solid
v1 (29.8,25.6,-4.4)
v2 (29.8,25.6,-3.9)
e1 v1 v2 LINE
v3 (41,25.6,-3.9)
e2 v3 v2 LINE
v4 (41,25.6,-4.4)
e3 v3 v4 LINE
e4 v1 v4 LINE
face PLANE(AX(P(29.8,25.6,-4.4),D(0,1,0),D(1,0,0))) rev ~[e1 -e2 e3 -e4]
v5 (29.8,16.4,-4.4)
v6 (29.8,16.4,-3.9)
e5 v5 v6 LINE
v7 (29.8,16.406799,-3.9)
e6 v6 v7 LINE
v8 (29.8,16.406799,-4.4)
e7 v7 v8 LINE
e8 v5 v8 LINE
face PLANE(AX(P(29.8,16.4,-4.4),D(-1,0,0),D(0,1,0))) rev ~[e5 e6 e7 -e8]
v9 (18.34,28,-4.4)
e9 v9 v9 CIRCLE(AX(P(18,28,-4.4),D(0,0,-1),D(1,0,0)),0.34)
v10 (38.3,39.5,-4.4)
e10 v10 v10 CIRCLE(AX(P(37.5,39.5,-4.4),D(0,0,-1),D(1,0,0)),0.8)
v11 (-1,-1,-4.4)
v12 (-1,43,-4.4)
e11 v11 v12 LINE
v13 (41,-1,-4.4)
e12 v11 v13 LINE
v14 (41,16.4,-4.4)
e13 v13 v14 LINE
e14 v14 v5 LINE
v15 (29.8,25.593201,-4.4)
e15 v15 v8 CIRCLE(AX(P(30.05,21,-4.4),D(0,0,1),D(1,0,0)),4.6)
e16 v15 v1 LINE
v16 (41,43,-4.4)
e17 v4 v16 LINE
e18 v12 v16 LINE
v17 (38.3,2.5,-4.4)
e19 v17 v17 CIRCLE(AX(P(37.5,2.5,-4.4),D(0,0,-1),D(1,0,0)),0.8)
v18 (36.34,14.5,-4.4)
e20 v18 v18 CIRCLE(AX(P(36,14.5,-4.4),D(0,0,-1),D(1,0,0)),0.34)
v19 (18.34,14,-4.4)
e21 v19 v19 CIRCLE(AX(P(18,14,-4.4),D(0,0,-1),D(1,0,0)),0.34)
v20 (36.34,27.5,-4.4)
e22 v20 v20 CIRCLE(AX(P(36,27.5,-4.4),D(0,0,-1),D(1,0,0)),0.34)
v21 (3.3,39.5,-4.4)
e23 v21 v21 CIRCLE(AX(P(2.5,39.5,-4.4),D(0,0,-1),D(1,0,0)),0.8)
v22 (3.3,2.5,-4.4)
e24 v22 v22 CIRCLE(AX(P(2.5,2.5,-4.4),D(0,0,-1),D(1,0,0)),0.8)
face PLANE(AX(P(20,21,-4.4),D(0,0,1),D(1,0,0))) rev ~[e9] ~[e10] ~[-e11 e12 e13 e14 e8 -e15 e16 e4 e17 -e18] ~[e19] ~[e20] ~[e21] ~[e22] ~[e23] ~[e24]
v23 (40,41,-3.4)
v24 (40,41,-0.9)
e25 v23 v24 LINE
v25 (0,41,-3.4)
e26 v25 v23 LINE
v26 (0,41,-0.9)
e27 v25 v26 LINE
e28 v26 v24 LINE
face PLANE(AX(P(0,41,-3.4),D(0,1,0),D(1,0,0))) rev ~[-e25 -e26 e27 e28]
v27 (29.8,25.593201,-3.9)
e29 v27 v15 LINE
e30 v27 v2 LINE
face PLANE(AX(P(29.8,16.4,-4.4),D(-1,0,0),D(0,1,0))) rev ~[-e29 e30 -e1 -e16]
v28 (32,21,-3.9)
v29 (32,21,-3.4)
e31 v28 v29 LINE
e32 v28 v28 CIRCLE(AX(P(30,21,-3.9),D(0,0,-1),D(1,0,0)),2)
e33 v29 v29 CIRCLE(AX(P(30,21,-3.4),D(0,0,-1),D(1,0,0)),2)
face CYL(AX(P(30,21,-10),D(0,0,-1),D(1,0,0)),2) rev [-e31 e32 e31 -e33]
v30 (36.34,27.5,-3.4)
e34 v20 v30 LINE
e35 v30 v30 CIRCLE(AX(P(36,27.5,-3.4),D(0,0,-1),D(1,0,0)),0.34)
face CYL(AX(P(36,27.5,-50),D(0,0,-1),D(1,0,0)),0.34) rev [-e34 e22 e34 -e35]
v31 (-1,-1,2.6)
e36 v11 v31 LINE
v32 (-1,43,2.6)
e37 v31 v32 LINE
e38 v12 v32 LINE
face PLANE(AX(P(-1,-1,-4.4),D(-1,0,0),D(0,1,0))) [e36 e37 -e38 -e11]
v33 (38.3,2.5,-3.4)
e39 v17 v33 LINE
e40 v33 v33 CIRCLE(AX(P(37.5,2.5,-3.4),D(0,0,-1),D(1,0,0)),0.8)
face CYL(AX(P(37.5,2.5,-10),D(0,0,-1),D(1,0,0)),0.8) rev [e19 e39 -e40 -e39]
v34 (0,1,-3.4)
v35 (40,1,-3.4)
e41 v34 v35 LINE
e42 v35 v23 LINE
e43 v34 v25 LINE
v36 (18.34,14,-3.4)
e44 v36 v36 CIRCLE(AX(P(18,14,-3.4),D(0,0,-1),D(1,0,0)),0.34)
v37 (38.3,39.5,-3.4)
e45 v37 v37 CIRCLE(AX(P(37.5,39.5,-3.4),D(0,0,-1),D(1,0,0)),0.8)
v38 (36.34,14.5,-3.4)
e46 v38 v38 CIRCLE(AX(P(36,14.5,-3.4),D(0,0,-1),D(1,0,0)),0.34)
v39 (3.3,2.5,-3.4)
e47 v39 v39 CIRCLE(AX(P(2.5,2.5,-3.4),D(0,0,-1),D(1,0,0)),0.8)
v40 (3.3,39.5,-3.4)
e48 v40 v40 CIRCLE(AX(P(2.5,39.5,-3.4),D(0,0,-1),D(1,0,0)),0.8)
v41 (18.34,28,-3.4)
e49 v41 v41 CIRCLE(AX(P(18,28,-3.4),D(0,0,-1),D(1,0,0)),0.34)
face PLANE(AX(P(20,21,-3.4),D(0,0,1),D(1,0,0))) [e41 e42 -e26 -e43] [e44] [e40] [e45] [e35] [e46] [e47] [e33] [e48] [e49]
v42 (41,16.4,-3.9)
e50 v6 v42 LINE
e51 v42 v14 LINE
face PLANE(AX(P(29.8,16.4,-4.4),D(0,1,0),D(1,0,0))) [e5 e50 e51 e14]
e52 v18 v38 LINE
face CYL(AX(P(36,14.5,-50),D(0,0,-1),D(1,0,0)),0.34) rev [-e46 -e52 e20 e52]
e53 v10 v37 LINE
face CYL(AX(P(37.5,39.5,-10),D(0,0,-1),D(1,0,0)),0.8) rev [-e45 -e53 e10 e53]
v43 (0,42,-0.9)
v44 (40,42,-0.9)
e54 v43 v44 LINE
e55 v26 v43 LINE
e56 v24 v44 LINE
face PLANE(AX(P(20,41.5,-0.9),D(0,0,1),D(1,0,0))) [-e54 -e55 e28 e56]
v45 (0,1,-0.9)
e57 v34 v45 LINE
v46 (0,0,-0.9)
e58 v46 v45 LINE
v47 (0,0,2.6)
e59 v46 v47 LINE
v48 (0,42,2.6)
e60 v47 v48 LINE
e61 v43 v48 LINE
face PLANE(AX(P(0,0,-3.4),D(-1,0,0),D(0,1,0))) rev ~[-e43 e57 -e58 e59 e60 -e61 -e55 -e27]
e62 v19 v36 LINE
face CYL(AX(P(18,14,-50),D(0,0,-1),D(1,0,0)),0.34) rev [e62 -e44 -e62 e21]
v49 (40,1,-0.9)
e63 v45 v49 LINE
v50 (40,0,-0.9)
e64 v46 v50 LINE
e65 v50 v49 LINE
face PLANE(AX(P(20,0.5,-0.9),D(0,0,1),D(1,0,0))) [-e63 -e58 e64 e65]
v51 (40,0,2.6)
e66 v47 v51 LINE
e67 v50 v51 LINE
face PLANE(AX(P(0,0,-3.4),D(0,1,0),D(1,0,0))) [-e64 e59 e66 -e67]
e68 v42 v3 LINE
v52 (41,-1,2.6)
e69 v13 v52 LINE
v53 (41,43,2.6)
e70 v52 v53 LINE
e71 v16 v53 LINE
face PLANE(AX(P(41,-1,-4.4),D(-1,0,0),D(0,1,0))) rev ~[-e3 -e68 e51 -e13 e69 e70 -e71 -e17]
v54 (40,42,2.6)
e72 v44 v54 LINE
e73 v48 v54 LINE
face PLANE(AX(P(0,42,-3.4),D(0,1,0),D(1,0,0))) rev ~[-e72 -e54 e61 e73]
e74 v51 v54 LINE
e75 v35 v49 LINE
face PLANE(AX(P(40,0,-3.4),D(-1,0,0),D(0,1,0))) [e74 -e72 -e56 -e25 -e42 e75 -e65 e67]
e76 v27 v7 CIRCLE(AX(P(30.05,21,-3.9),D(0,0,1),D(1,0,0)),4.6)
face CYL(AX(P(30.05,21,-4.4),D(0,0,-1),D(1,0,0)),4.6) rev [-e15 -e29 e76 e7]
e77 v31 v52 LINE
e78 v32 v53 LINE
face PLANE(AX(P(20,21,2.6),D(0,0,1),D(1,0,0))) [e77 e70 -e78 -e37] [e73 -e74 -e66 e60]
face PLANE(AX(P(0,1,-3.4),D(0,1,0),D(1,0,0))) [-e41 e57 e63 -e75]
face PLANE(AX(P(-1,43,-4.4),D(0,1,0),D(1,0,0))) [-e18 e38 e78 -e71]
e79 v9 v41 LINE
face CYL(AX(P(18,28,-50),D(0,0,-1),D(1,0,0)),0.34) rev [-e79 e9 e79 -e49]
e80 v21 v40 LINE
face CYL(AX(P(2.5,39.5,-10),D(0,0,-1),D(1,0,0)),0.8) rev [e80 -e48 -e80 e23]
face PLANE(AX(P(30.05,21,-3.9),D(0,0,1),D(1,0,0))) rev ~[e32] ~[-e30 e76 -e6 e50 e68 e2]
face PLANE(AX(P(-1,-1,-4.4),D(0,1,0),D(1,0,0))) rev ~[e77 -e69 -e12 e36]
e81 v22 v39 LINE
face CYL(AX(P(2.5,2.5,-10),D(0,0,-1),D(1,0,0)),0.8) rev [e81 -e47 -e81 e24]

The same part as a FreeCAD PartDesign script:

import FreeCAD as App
import Part
import Sketcher

V = App.Vector
Q = App.Units.Quantity


def add_polygon(sketch, points):
    """Adds a closed chain of lines whose ends are joined by coincident constraints."""
    first, n = sketch.GeometryCount, len(points)
    for a, b in zip(points, points[1:] + points[:1]):
        sketch.addGeometry(Part.LineSegment(App.Vector(*a, 0), App.Vector(*b, 0)), False)
    for i in range(n):
        sketch.addConstraint(Sketcher.Constraint("Coincident", first + i, 2, first + (i + 1) % n, 1))

doc = App.newDocument("Part")
body = doc.addObject("PartDesign::Body", "Body")

sketch1 = body.newObject("Sketcher::SketchObject", "Sketch")
sketch1.AttachmentSupport = (doc.getObject("XY_Plane"), [""])
sketch1.MapMode = "FlatFace"
sketch1.AttachmentOffset = App.Placement(V(0, 0, -10), App.Rotation())
sketch1.addGeometry(Part.Circle(V(2.5, 2.5, 0), V(0, 0, 1), 0.8), False)
sketch1.addConstraint([
    Sketcher.Constraint("Diameter", 0, Q("1.6 mm")),
    Sketcher.Constraint("DistanceX", -1, 1, 0, 3, Q("2.5 mm")),
    Sketcher.Constraint("DistanceY", -1, 1, 0, 3, Q("2.5 mm")),
])
pad1 = body.newObject("PartDesign::Pad", "Pad")
pad1.Profile = sketch1
pad1.Length = 20
body2 = doc.addObject("PartDesign::Body", "Body001")

sketch2 = body2.newObject("Sketcher::SketchObject", "Sketch001")
sketch2.AttachmentSupport = (doc.getObject("XY_Plane001"), [""])
sketch2.MapMode = "FlatFace"
sketch2.AttachmentOffset = App.Placement(V(0, 0, -10), App.Rotation())
sketch2.addGeometry(Part.Circle(V(37.5, 39.5, 0), V(0, 0, 1), 0.8), False)
sketch2.addConstraint([
    Sketcher.Constraint("Diameter", 0, Q("1.6 mm")),
    Sketcher.Constraint("DistanceX", -1, 1, 0, 3, Q("37.5 mm")),
    Sketcher.Constraint("DistanceY", -1, 1, 0, 3, Q("39.5 mm")),
])
pad2 = body2.newObject("PartDesign::Pad", "Pad001")
pad2.Profile = sketch2
pad2.Length = 20
body3 = doc.addObject("PartDesign::Body", "Body002")

sketch3 = body3.newObject("Sketcher::SketchObject", "Sketch002")
sketch3.AttachmentSupport = (doc.getObject("XY_Plane002"), [""])
sketch3.MapMode = "FlatFace"
sketch3.AttachmentOffset = App.Placement(V(0, 0, -10), App.Rotation())
sketch3.addGeometry(Part.Circle(V(2.5, 39.5, 0), V(0, 0, 1), 0.8), False)
sketch3.addConstraint([
    Sketcher.Constraint("Diameter", 0, Q("1.6 mm")),
    Sketcher.Constraint("DistanceX", -1, 1, 0, 3, Q("2.5 mm")),
    Sketcher.Constraint("DistanceY", -1, 1, 0, 3, Q("39.5 mm")),
])
pad3 = body3.newObject("PartDesign::Pad", "Pad002")
pad3.Profile = sketch3
pad3.Length = 20
body4 = doc.addObject("PartDesign::Body", "Body003")
body4.AllowCompound = True

sketch4 = body4.newObject("Sketcher::SketchObject", "Sketch003")
sketch4.AttachmentSupport = (doc.getObject("XY_Plane003"), [""])
sketch4.MapMode = "FlatFace"
sketch4.AttachmentOffset = App.Placement(V(0, 0, -10), App.Rotation())
sketch4.addGeometry(Part.Circle(V(37.5, 2.5, 0), V(0, 0, 1), 0.8), False)
sketch4.addConstraint([
    Sketcher.Constraint("Diameter", 0, Q("1.6 mm")),
    Sketcher.Constraint("DistanceX", -1, 1, 0, 3, Q("37.5 mm")),
    Sketcher.Constraint("DistanceY", -1, 1, 0, 3, Q("2.5 mm")),
])
pad4 = body4.newObject("PartDesign::Pad", "Pad003")
pad4.Profile = sketch4
pad4.Length = 20
doc.recompute()

boolean = body4.newObject("PartDesign::Boolean", "Boolean")
boolean.Type = "Fuse"
boolean.addObjects([body])
doc.recompute()

boolean2 = body4.newObject("PartDesign::Boolean", "Boolean001")
boolean2.Type = "Fuse"
boolean2.addObjects([body2])
doc.recompute()

boolean3 = body4.newObject("PartDesign::Boolean", "Boolean002")
boolean3.Type = "Fuse"
boolean3.addObjects([body3])
body5 = doc.addObject("PartDesign::Body", "Body004")

sketch5 = body5.newObject("Sketcher::SketchObject", "Sketch004")
sketch5.AttachmentSupport = (doc.getObject("XY_Plane004"), [""])
sketch5.MapMode = "FlatFace"
sketch5.AttachmentOffset = App.Placement(V(0, 0, -50), App.Rotation())
sketch5.addGeometry(Part.Circle(V(18, 28, 0), V(0, 0, 1), 0.34), False)
sketch5.addConstraint([
    Sketcher.Constraint("Diameter", 0, Q("0.68 mm")),
    Sketcher.Constraint("DistanceX", -1, 1, 0, 3, Q("18 mm")),
    Sketcher.Constraint("DistanceY", -1, 1, 0, 3, Q("28 mm")),
])
pad5 = body5.newObject("PartDesign::Pad", "Pad004")
pad5.Profile = sketch5
pad5.Length = 100
body6 = doc.addObject("PartDesign::Body", "Body005")

sketch6 = body6.newObject("Sketcher::SketchObject", "Sketch005")
sketch6.AttachmentSupport = (doc.getObject("XY_Plane005"), [""])
sketch6.MapMode = "FlatFace"
sketch6.AttachmentOffset = App.Placement(V(0, 0, -50), App.Rotation())
sketch6.addGeometry(Part.Circle(V(36, 14.5, 0), V(0, 0, 1), 0.34), False)
sketch6.addConstraint([
    Sketcher.Constraint("Diameter", 0, Q("0.68 mm")),
    Sketcher.Constraint("DistanceX", -1, 1, 0, 3, Q("36 mm")),
    Sketcher.Constraint("DistanceY", -1, 1, 0, 3, Q("14.5 mm")),
])
pad6 = body6.newObject("PartDesign::Pad", "Pad005")
pad6.Profile = sketch6
pad6.Length = 100
body7 = doc.addObject("PartDesign::Body", "Body006")

sketch7 = body7.newObject("Sketcher::SketchObject", "Sketch006")
sketch7.AttachmentSupport = (doc.getObject("XY_Plane006"), [""])
sketch7.MapMode = "FlatFace"
sketch7.AttachmentOffset = App.Placement(V(0, 0, -50), App.Rotation())
sketch7.addGeometry(Part.Circle(V(36, 27.5, 0), V(0, 0, 1), 0.34), False)
sketch7.addConstraint([
    Sketcher.Constraint("Diameter", 0, Q("0.68 mm")),
    Sketcher.Constraint("DistanceX", -1, 1, 0, 3, Q("36 mm")),
    Sketcher.Constraint("DistanceY", -1, 1, 0, 3, Q("27.5 mm")),
])
pad7 = body7.newObject("PartDesign::Pad", "Pad006")
pad7.Profile = sketch7
pad7.Length = 100
body8 = doc.addObject("PartDesign::Body", "Body007")
body8.AllowCompound = True

sketch8 = body8.newObject("Sketcher::SketchObject", "Sketch007")
sketch8.AttachmentSupport = (doc.getObject("XY_Plane007"), [""])
sketch8.MapMode = "FlatFace"
sketch8.AttachmentOffset = App.Placement(V(0, 0, -50), App.Rotation())
sketch8.addGeometry(Part.Circle(V(18, 14, 0), V(0, 0, 1), 0.34), False)
sketch8.addConstraint([
    Sketcher.Constraint("Diameter", 0, Q("0.68 mm")),
    Sketcher.Constraint("DistanceX", -1, 1, 0, 3, Q("18 mm")),
    Sketcher.Constraint("DistanceY", -1, 1, 0, 3, Q("14 mm")),
])
pad8 = body8.newObject("PartDesign::Pad", "Pad007")
pad8.Profile = sketch8
pad8.Length = 100
doc.recompute()

boolean4 = body8.newObject("PartDesign::Boolean", "Boolean003")
boolean4.Type = "Fuse"
boolean4.addObjects([body5])
doc.recompute()

boolean5 = body8.newObject("PartDesign::Boolean", "Boolean004")
boolean5.Type = "Fuse"
boolean5.addObjects([body6])
doc.recompute()

boolean6 = body8.newObject("PartDesign::Boolean", "Boolean005")
boolean6.Type = "Fuse"
boolean6.addObjects([body7])
body9 = doc.addObject("PartDesign::Body", "Body008")

sketch9 = body9.newObject("Sketcher::SketchObject", "Sketch008")
sketch9.AttachmentSupport = (doc.getObject("XY_Plane008"), [""])
sketch9.MapMode = "FlatFace"
sketch9.AttachmentOffset = App.Placement(V(0, 0, -4.4), App.Rotation())
sketch9.addGeometry(Part.Circle(V(27.75, 21, 0), V(0, 0, 1), 4.6), False)
sketch9.addConstraint([
    Sketcher.Constraint("Diameter", 0, Q("9.2 mm")),
    Sketcher.Constraint("DistanceY", -1, 1, 0, 3, Q("21 mm")),
    Sketcher.Constraint("DistanceX", -1, 1, 0, 3, Q("27.75 mm")),
])
pad9 = body9.newObject("PartDesign::Pad", "Pad008")
pad9.Profile = sketch9
pad9.Length = 0.5
body10 = doc.addObject("PartDesign::Body", "Body009")

sketch10 = body10.newObject("Sketcher::SketchObject", "Sketch009")
sketch10.AttachmentSupport = (doc.getObject("XY_Plane009"), [""])
sketch10.MapMode = "FlatFace"
sketch10.AttachmentOffset = App.Placement(V(0, 0, -4.4), App.Rotation())
sketch10.addGeometry(Part.Circle(V(27.75, 21, 0), V(0, 0, 1), 4.6), False)
sketch10.addConstraint([
    Sketcher.Constraint("Diameter", 0, Q("9.2 mm")),
    Sketcher.Constraint("DistanceY", -1, 1, 0, 3, Q("21 mm")),
    Sketcher.Constraint("DistanceX", -1, 1, 0, 3, Q("27.75 mm")),
])
pad10 = body10.newObject("PartDesign::Pad", "Pad009")
pad10.Profile = sketch10
pad10.Length = 0.5
body11 = doc.addObject("PartDesign::Body", "Body010")

sketch11 = body11.newObject("Sketcher::SketchObject", "Sketch010")
sketch11.AttachmentSupport = (doc.getObject("XY_Plane010"), [""])
sketch11.MapMode = "FlatFace"
sketch11.AttachmentOffset = App.Placement(V(0, 0, -4.4), App.Rotation())
add_polygon(sketch11, [(27.5, 25.6), (27.5, 16.4), (45.5, 16.4), (45.5, 25.6)])
sketch11.addConstraint([
    Sketcher.Constraint("Vertical", 0),
    Sketcher.Constraint("Horizontal", 1),
    Sketcher.Constraint("Vertical", 2),
    Sketcher.Constraint("Horizontal", 3),
    Sketcher.Constraint("DistanceX", 1, 1, 1, 2, Q("18 mm")),
    Sketcher.Constraint("DistanceY", 0, 2, 0, 1, Q("9.2 mm")),
    Sketcher.Constraint("DistanceX", -1, 1, 0, 2, Q("27.5 mm")),
    Sketcher.Constraint("DistanceY", -1, 1, 0, 2, Q("16.4 mm")),
])
pad11 = body11.newObject("PartDesign::Pad", "Pad010")
pad11.Profile = sketch11
pad11.Length = 0.5
doc.recompute()

boolean7 = body11.newObject("PartDesign::Boolean", "Boolean006")
boolean7.Type = "Fuse"
boolean7.addObjects([body9])
doc.recompute()

boolean8 = body11.newObject("PartDesign::Boolean", "Boolean007")
boolean8.Type = "Fuse"
boolean8.addObjects([body10])
body12 = doc.addObject("PartDesign::Body", "Body011")
doc.recompute()

body11.Placement = App.Placement(V(2.3, 0, 0), App.Rotation(V(0, 0, 1), 0))
boolean9 = body12.newObject("PartDesign::Boolean", "Boolean008")
boolean9.Type = "Fuse"
boolean9.addObjects([body11])
body13 = doc.addObject("PartDesign::Body", "Body012")

sketch12 = body13.newObject("Sketcher::SketchObject", "Sketch011")
sketch12.AttachmentSupport = (doc.getObject("XY_Plane012"), [""])
sketch12.MapMode = "FlatFace"
sketch12.AttachmentOffset = App.Placement(V(0, 0, -3.4), App.Rotation())
add_polygon(sketch12, [(0, 42), (0, 41), (40, 41), (40, 42)])
sketch12.addConstraint([
    Sketcher.Constraint("Vertical", 0),
    Sketcher.Constraint("Horizontal", 1),
    Sketcher.Constraint("Vertical", 2),
    Sketcher.Constraint("Horizontal", 3),
    Sketcher.Constraint("PointOnObject", 0, 2, -2),
    Sketcher.Constraint("DistanceX", 1, 1, 1, 2, Q("40 mm")),
    Sketcher.Constraint("DistanceY", 0, 2, 0, 1, Q("1 mm")),
    Sketcher.Constraint("DistanceY", -1, 1, 0, 2, Q("41 mm")),
])
pad12 = body13.newObject("PartDesign::Pad", "Pad011")
pad12.Profile = sketch12
pad12.Length = 2.5
body14 = doc.addObject("PartDesign::Body", "Body013")

sketch13 = body14.newObject("Sketcher::SketchObject", "Sketch012")
sketch13.AttachmentSupport = (doc.getObject("XY_Plane013"), [""])
sketch13.MapMode = "FlatFace"
sketch13.AttachmentOffset = App.Placement(V(0, 0, -10), App.Rotation())
sketch13.addGeometry(Part.Circle(V(30, 21, 0), V(0, 0, 1), 2), False)
sketch13.addConstraint([
    Sketcher.Constraint("Diameter", 0, Q("4 mm")),
    Sketcher.Constraint("DistanceX", -1, 1, 0, 3, Q("30 mm")),
    Sketcher.Constraint("DistanceY", -1, 1, 0, 3, Q("21 mm")),
])
pad13 = body14.newObject("PartDesign::Pad", "Pad012")
pad13.Profile = sketch13
pad13.Length = 20
body15 = doc.addObject("PartDesign::Body", "Body014")

sketch14 = body15.newObject("Sketcher::SketchObject", "Sketch013")
sketch14.AttachmentSupport = (doc.getObject("XY_Plane014"), [""])
sketch14.MapMode = "FlatFace"
sketch14.AttachmentOffset = App.Placement(V(0, 0, -3.4), App.Rotation())
add_polygon(sketch14, [(0, 42), (0, 0), (40, 0), (40, 42)])
sketch14.addConstraint([
    Sketcher.Constraint("Vertical", 0),
    Sketcher.Constraint("Horizontal", 1),
    Sketcher.Constraint("Vertical", 2),
    Sketcher.Constraint("Horizontal", 3),
    Sketcher.Constraint("Coincident", 0, 2, -1, 1),
    Sketcher.Constraint("DistanceX", 1, 1, 1, 2, Q("40 mm")),
    Sketcher.Constraint("DistanceY", 0, 2, 0, 1, Q("42 mm")),
])
pad14 = body15.newObject("PartDesign::Pad", "Pad013")
pad14.Profile = sketch14
pad14.Length = 6
body16 = doc.addObject("PartDesign::Body", "Body015")

sketch15 = body16.newObject("Sketcher::SketchObject", "Sketch014")
sketch15.AttachmentSupport = (doc.getObject("XY_Plane015"), [""])
sketch15.MapMode = "FlatFace"
sketch15.AttachmentOffset = App.Placement(V(0, 0, -4.4), App.Rotation())
add_polygon(sketch15, [(-1, 43), (-1, -1), (41, -1), (41, 43)])
sketch15.addConstraint([
    Sketcher.Constraint("Vertical", 0),
    Sketcher.Constraint("Horizontal", 1),
    Sketcher.Constraint("Vertical", 2),
    Sketcher.Constraint("Horizontal", 3),
    Sketcher.Constraint("DistanceX", 1, 1, 1, 2, Q("42 mm")),
    Sketcher.Constraint("DistanceY", 0, 2, 0, 1, Q("44 mm")),
    Sketcher.Constraint("DistanceX", 0, 2, -1, 1, Q("1 mm")),
    Sketcher.Constraint("DistanceY", 0, 2, -1, 1, Q("1 mm")),
])
pad15 = body16.newObject("PartDesign::Pad", "Pad014")
pad15.Profile = sketch15
pad15.Length = 7
doc.recompute()

boolean10 = body16.newObject("PartDesign::Boolean", "Boolean009")
boolean10.Type = "Cut"
boolean10.addObjects([body15])
doc.recompute()

boolean11 = body16.newObject("PartDesign::Boolean", "Boolean010")
boolean11.Type = "Cut"
boolean11.addObjects([body14])
body17 = doc.addObject("PartDesign::Body", "Body016")
body17.AllowCompound = True

sketch16 = body17.newObject("Sketcher::SketchObject", "Sketch015")
sketch16.AttachmentSupport = (doc.getObject("XY_Plane016"), [""])
sketch16.MapMode = "FlatFace"
sketch16.AttachmentOffset = App.Placement(V(0, 0, -3.4), App.Rotation())
add_polygon(sketch16, [(0, 1), (0, 0), (40, 0), (40, 1)])
sketch16.addConstraint([
    Sketcher.Constraint("Vertical", 0),
    Sketcher.Constraint("Horizontal", 1),
    Sketcher.Constraint("Vertical", 2),
    Sketcher.Constraint("Horizontal", 3),
    Sketcher.Constraint("Coincident", 0, 2, -1, 1),
    Sketcher.Constraint("DistanceX", 1, 1, 1, 2, Q("40 mm")),
    Sketcher.Constraint("DistanceY", 0, 2, 0, 1, Q("1 mm")),
])
pad16 = body17.newObject("PartDesign::Pad", "Pad015")
pad16.Profile = sketch16
pad16.Length = 2.5
doc.recompute()

boolean12 = body17.newObject("PartDesign::Boolean", "Boolean011")
boolean12.Type = "Fuse"
boolean12.addObjects([body13])
doc.recompute()

boolean13 = body17.newObject("PartDesign::Boolean", "Boolean012")
boolean13.Type = "Fuse"
boolean13.addObjects([body16])
doc.recompute()

boolean14 = body17.newObject("PartDesign::Boolean", "Boolean013")
boolean14.Type = "Cut"
boolean14.addObjects([body12])
doc.recompute()

boolean15 = body17.newObject("PartDesign::Boolean", "Boolean014")
boolean15.Type = "Cut"
boolean15.addObjects([body8])
doc.recompute()

boolean16 = body17.newObject("PartDesign::Boolean", "Boolean015")
boolean16.Type = "Cut"
boolean16.addObjects([body4])

doc.recompute()
